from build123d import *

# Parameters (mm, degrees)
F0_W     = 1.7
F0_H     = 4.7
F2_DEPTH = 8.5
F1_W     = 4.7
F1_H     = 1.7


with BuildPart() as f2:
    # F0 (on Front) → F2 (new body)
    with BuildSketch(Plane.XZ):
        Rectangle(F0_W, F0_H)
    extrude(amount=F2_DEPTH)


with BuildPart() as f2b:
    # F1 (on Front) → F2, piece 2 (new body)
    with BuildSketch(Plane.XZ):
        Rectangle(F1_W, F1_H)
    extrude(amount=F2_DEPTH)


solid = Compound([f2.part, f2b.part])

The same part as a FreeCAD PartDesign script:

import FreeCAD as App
import Part
import Sketcher

V = App.Vector

doc = App.newDocument("Part")
body = doc.addObject("PartDesign::Body", "Body")

sketch1 = body.newObject("Sketcher::SketchObject", "Sketch")
sketch1.AttachmentSupport = (doc.getObject("XZ_Plane"), [""])
sketch1.MapMode = "FlatFace"
sketch1.addGeometry(Part.LineSegment(V(-0.8, 2.4, 0), V(-0.8, -2.4, 0)), False)
sketch1.addGeometry(Part.LineSegment(V(-0.8, -2.4, 0), V(0.8, -2.4, 0)), False)
sketch1.addGeometry(Part.LineSegment(V(0.8, -2.4, 0), V(0.8, 2.4, 0)), False)
sketch1.addGeometry(Part.LineSegment(V(0.8, 2.4, 0), V(-0.8, 2.4, 0)), False)
sketch1.addConstraint(Sketcher.Constraint("Coincident", 0, 2, 1, 1))
sketch1.addConstraint(Sketcher.Constraint("Coincident", 1, 2, 2, 1))
sketch1.addConstraint(Sketcher.Constraint("Coincident", 2, 2, 3, 1))
sketch1.addConstraint(Sketcher.Constraint("Coincident", 3, 2, 0, 1))
sketch1.addConstraint(Sketcher.Constraint("Vertical", 0))
sketch1.addConstraint(Sketcher.Constraint("Horizontal", 1))
sketch1.addConstraint(Sketcher.Constraint("Vertical", 2))
sketch1.addConstraint(Sketcher.Constraint("Horizontal", 3))
sketch1.addConstraint(Sketcher.Constraint("Symmetric", 0, 2, 2, 2, -1, 1))
sketch1.addConstraint(Sketcher.Constraint("DistanceX", 1, 1, 1, 2, 1.7))
sketch1.addConstraint(Sketcher.Constraint("DistanceY", 0, 2, 0, 1, 4.7))
pad1 = body.newObject("PartDesign::Pad", "Pad")
pad1.Profile = sketch1
pad1.Length = 8.5
body2 = doc.addObject("PartDesign::Body", "Body001")

sketch2 = body2.newObject("Sketcher::SketchObject", "Sketch001")
sketch2.AttachmentSupport = (doc.getObject("XZ_Plane001"), [""])
sketch2.MapMode = "FlatFace"
sketch2.addGeometry(Part.LineSegment(V(-2.4, 0.8, 0), V(-2.4, -0.8, 0)), False)
sketch2.addGeometry(Part.LineSegment(V(-2.4, -0.8, 0), V(2.4, -0.8, 0)), False)
sketch2.addGeometry(Part.LineSegment(V(2.4, -0.8, 0), V(2.4, 0.8, 0)), False)
sketch2.addGeometry(Part.LineSegment(V(2.4, 0.8, 0), V(-2.4, 0.8, 0)), False)
sketch2.addConstraint(Sketcher.Constraint("Coincident", 0, 2, 1, 1))
sketch2.addConstraint(Sketcher.Constraint("Coincident", 1, 2, 2, 1))
sketch2.addConstraint(Sketcher.Constraint("Coincident", 2, 2, 3, 1))
sketch2.addConstraint(Sketcher.Constraint("Coincident", 3, 2, 0, 1))
sketch2.addConstraint(Sketcher.Constraint("Vertical", 0))
sketch2.addConstraint(Sketcher.Constraint("Horizontal", 1))
sketch2.addConstraint(Sketcher.Constraint("Vertical", 2))
sketch2.addConstraint(Sketcher.Constraint("Horizontal", 3))
sketch2.addConstraint(Sketcher.Constraint("Symmetric", 0, 2, 2, 2, -1, 1))
sketch2.addConstraint(Sketcher.Constraint("DistanceX", 1, 1, 1, 2, 4.7))
sketch2.addConstraint(Sketcher.Constraint("DistanceY", 0, 2, 0, 1, 1.7))
pad2 = body2.newObject("PartDesign::Pad", "Pad001")
pad2.Profile = sketch2
pad2.Length = 8.5

doc.recompute()
